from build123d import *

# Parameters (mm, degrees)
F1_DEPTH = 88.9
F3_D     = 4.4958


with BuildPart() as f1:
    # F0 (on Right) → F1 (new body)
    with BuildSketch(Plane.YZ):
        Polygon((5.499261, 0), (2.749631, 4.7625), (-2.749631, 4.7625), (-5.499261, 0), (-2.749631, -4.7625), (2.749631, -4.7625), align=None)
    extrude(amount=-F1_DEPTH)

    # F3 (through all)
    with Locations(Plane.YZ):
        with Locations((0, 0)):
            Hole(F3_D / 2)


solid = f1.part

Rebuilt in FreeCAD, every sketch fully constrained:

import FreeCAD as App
import Part
import Sketcher
Q = App.Units.Quantity


def add_polygon(sketch, points):
    """Adds a closed chain of lines whose ends are joined by coincident constraints."""
    first, n = sketch.GeometryCount, len(points)
    for a, b in zip(points, points[1:] + points[:1]):
        sketch.addGeometry(Part.LineSegment(App.Vector(*a, 0), App.Vector(*b, 0)), False)
    for i in range(n):
        sketch.addConstraint(Sketcher.Constraint("Coincident", first + i, 2, first + (i + 1) % n, 1))

doc = App.newDocument("Part")
params = doc.addObject("Spreadsheet::Sheet", "Params")
for row, (alias, value) in enumerate([
    ("pad1_length", "3.5 in"),
    ("sketch2_diameter", "0.177 in"),
    ("hole_diameter", "0.177 in"),
], start=1):
    params.set(f"A{row}", alias)
    params.set(f"B{row}", "=" + value)
    params.setAlias(f"B{row}", alias)

body = doc.addObject("PartDesign::Body", "Body")

# Sketch on YZ plane
sketch1 = body.newObject("Sketcher::SketchObject", "Sketch")
sketch1.AttachmentSupport = (doc.getObject("YZ_Plane"), [""])
sketch1.MapMode = "FlatFace"
add_polygon(sketch1, [(5, 0), (3, 5), (-3, 5), (-5, 0), (-3, -5), (3, -5)])  # lines 0-5
sketch1.addConstraint([
    Sketcher.Constraint("Horizontal", 1),
    Sketcher.Constraint("Horizontal", 4),
    Sketcher.Constraint("Symmetric", 0, 2, 3, 2, -1, 1),
    Sketcher.Constraint("Symmetric", 2, 2, 5, 2, -1, 1),
    Sketcher.Constraint("PointOnObject", 2, 2, -1),
    Sketcher.Constraint("Parallel", 2, 5),
    Sketcher.Constraint("Vertical", 1, 2, 3, 2),
    Sketcher.Constraint("Angle", 0, Q("119.999994 deg")),
    Sketcher.Constraint("DistanceY", -1, 1, 0, 2, Q("0.1875 in")),
    Sketcher.Constraint("DistanceX", 1, 2, 1, 1, Q("5.499262 mm")),
])
pad1 = body.newObject("PartDesign::Pad", "Pad")
pad1.Profile = sketch1
pad1.setExpression("Length", "Params.pad1_length")
pad1.Reversed = True

# Sketch on YZ plane
sketch2 = body.newObject("Sketcher::SketchObject", "Sketch001")
sketch2.AttachmentSupport = (doc.getObject("YZ_Plane"), [""])
sketch2.MapMode = "FlatFace"
sketch2.addGeometry(Part.Circle(App.Vector(0, 0, 0), App.Vector(0, 0, 1), 2.2), False)
sketch2.addConstraint([
    Sketcher.Constraint("Coincident", 0, 3, -1, 1),
    Sketcher.Constraint("Diameter", 0, Q("0.177 in")),
])
sketch2.setExpression("Constraints[1]", "Params.sketch2_diameter")
doc.recompute()
hole = body.newObject("PartDesign::Hole", "Hole")
hole.Profile = sketch2
hole.ThreadType = "None"
hole.setExpression("Diameter", "Params.hole_diameter")
hole.DepthType = "ThroughAll"

doc.recompute()
